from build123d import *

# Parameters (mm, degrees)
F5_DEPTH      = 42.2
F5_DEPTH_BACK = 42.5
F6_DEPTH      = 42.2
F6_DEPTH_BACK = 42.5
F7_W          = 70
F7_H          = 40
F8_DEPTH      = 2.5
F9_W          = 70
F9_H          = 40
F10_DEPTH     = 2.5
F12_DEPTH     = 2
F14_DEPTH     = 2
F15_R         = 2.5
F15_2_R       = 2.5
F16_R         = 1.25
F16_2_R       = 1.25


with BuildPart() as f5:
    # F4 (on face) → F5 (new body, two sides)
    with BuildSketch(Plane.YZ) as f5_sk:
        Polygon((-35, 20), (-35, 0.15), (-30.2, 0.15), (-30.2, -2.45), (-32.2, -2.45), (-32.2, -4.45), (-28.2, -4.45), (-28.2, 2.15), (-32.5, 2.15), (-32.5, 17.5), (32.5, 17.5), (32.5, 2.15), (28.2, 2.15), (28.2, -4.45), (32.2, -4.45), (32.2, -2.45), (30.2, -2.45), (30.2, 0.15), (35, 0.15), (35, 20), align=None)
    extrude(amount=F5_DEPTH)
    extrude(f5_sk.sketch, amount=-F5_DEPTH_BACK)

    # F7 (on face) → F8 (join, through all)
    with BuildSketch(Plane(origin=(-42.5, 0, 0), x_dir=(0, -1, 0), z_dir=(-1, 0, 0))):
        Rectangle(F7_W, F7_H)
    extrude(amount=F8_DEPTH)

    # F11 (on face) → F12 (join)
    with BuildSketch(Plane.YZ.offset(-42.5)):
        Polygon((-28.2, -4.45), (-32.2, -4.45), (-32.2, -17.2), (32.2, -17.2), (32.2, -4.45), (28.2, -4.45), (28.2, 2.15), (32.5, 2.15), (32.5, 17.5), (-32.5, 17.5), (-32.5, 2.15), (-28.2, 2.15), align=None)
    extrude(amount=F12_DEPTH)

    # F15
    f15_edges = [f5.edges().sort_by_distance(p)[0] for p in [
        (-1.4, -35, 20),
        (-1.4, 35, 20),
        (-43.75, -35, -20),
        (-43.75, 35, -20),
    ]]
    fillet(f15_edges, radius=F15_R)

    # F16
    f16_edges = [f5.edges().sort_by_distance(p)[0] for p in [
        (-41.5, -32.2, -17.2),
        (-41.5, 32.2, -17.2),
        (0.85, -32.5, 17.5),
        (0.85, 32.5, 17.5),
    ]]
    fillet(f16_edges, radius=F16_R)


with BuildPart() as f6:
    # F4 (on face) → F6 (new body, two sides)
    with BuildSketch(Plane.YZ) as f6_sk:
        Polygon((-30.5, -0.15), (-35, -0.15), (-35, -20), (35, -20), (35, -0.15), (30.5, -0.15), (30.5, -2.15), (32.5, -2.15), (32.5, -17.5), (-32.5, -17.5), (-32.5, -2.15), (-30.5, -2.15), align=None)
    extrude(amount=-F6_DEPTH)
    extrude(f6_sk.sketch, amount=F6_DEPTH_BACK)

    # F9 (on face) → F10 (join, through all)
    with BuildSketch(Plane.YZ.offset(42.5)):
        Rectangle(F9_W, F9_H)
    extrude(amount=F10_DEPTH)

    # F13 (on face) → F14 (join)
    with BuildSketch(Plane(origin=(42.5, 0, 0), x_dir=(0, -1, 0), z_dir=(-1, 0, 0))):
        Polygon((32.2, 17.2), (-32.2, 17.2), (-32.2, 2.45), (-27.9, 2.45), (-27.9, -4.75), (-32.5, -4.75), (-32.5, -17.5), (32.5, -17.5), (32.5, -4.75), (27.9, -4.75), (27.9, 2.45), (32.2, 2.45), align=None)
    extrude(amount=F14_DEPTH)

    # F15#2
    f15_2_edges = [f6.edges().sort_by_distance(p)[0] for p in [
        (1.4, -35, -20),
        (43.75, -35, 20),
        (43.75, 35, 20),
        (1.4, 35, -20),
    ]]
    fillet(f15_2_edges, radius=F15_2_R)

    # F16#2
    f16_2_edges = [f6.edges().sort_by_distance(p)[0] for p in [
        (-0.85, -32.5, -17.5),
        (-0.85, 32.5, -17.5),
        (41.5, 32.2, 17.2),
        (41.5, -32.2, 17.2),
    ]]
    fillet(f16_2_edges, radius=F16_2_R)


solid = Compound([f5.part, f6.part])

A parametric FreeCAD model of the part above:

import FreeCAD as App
import Part
import Sketcher


def edges_at(feature, points):
    """Names of the edges that pass closest to the given points."""
    edges = feature.Shape.Edges
    near = lambda p: min(range(len(edges)), key=lambda i: edges[i].distToShape(Part.Vertex(*p))[0])
    return sorted({f"Edge{near(p) + 1}" for p in points})


def add_polygon(sketch, points):
    """Adds a closed chain of lines whose ends are joined by coincident constraints."""
    first, n = sketch.GeometryCount, len(points)
    for a, b in zip(points, points[1:] + points[:1]):
        sketch.addGeometry(Part.LineSegment(App.Vector(*a, 0), App.Vector(*b, 0)), False)
    for i in range(n):
        sketch.addConstraint(Sketcher.Constraint("Coincident", first + i, 2, first + (i + 1) % n, 1))

doc = App.newDocument("Part")
body = doc.addObject("PartDesign::Body", "Body")

sketch1 = body.newObject("Sketcher::SketchObject", "Sketch")
sketch1.AttachmentSupport = (doc.getObject("YZ_Plane"), [""])
sketch1.MapMode = "FlatFace"
add_polygon(sketch1, [(-35, 20), (-35, 0.1), (-30.2, 0.1), (-30.2, -2.5), (-32.2, -2.5), (-32.2, -4.5), (-28.2, -4.5), (-28.2, 2.1), (-32.5, 2.1), (-32.5, 17.5), (32.5, 17.5), (32.5, 2.1), (28.2, 2.1), (28.2, -4.5), (32.2, -4.5), (32.2, -2.5), (30.2, -2.5), (30.2, 0.1), (35, 0.1), (35, 20)])
sketch1.addConstraint(Sketcher.Constraint("Vertical", 0))
sketch1.addConstraint(Sketcher.Constraint("Horizontal", 1))
sketch1.addConstraint(Sketcher.Constraint("Vertical", 2))
sketch1.addConstraint(Sketcher.Constraint("Horizontal", 3))
sketch1.addConstraint(Sketcher.Constraint("Vertical", 4))
sketch1.addConstraint(Sketcher.Constraint("Horizontal", 5))
sketch1.addConstraint(Sketcher.Constraint("Vertical", 6))
sketch1.addConstraint(Sketcher.Constraint("Horizontal", 7))
sketch1.addConstraint(Sketcher.Constraint("Vertical", 8))
sketch1.addConstraint(Sketcher.Constraint("Horizontal", 9))
sketch1.addConstraint(Sketcher.Constraint("Vertical", 10))
sketch1.addConstraint(Sketcher.Constraint("Horizontal", 11))
sketch1.addConstraint(Sketcher.Constraint("Vertical", 12))
sketch1.addConstraint(Sketcher.Constraint("Horizontal", 13))
sketch1.addConstraint(Sketcher.Constraint("Vertical", 14))
sketch1.addConstraint(Sketcher.Constraint("Horizontal", 15))
sketch1.addConstraint(Sketcher.Constraint("Vertical", 16))
sketch1.addConstraint(Sketcher.Constraint("Horizontal", 17))
sketch1.addConstraint(Sketcher.Constraint("Vertical", 18))
sketch1.addConstraint(Sketcher.Constraint("Horizontal", 19))
sketch1.addConstraint(Sketcher.Constraint("Symmetric", 7, 2, 10, 2, -2))
sketch1.addConstraint(Sketcher.Constraint("Symmetric", 5, 2, 12, 2, -2))
sketch1.addConstraint(Sketcher.Constraint("Symmetric", 3, 2, 14, 2, -2))
sketch1.addConstraint(Sketcher.Constraint("Symmetric", 1, 2, 16, 2, -2))
sketch1.addConstraint(Sketcher.Constraint("Equal", 1, 17))
sketch1.addConstraint(Sketcher.Constraint("Equal", 15, 4))
sketch1.addConstraint(Sketcher.Constraint("DistanceX", 3, 2, 3, 1, 2.0))
sketch1.addConstraint(Sketcher.Constraint("DistanceX", 5, 1, 5, 2, 4.0))
sketch1.addConstraint(Sketcher.Constraint("DistanceX", 9, 1, 9, 2, 65.0))
sketch1.addConstraint(Sketcher.Constraint("DistanceX", 19, 2, 19, 1, 70.0))
sketch1.addConstraint(Sketcher.Constraint("DistanceX", 1, 1, 1, 2, 4.8))
sketch1.addConstraint(Sketcher.Constraint("DistanceY", 2, 2, 2, 1, 2.6))
sketch1.addConstraint(Sketcher.Constraint("DistanceY", 6, 1, 6, 2, 6.6))
sketch1.addConstraint(Sketcher.Constraint("DistanceY", -1, 1, 18, 2, 20.0))
sketch1.addConstraint(Sketcher.Constraint("DistanceY", 0, 2, 0, 1, 19.85))
sketch1.addConstraint(Sketcher.Constraint("DistanceY", 8, 1, 8, 2, 15.35))
pad1 = body.newObject("PartDesign::Pad", "Pad")
pad1.Profile = sketch1
pad1.Type = "TwoLengths"
pad1.Length = 42.2
pad1.Length2 = 42.5

sketch2 = body.newObject("Sketcher::SketchObject", "Sketch001")
sketch2.AttachmentSupport = (doc.getObject("YZ_Plane"), [""])
sketch2.MapMode = "FlatFace"
sketch2.AttachmentOffset = App.Placement(App.Vector(0, 0, -42.5), App.Rotation())
add_polygon(sketch2, [(35, 20), (35, -20), (-35, -20), (-35, 20)])
sketch2.addConstraint(Sketcher.Constraint("Vertical", 0))
sketch2.addConstraint(Sketcher.Constraint("Horizontal", 1))
sketch2.addConstraint(Sketcher.Constraint("Vertical", 2))
sketch2.addConstraint(Sketcher.Constraint("Horizontal", 3))
sketch2.addConstraint(Sketcher.Constraint("Symmetric", 0, 2, 2, 2, -1, 1))
sketch2.addConstraint(Sketcher.Constraint("DistanceX", 1, 2, 1, 1, 70.0))
sketch2.addConstraint(Sketcher.Constraint("DistanceY", 0, 2, 0, 1, 40.0))
pad2 = body.newObject("PartDesign::Pad", "Pad001")
pad2.Profile = sketch2
pad2.Length = 2.5
pad2.Reversed = True

sketch3 = body.newObject("Sketcher::SketchObject", "Sketch002")
sketch3.AttachmentSupport = (doc.getObject("YZ_Plane"), [""])
sketch3.MapMode = "FlatFace"
sketch3.AttachmentOffset = App.Placement(App.Vector(0, 0, -42.5), App.Rotation())
add_polygon(sketch3, [(-28.2, -4.5), (-32.2, -4.5), (-32.2, -17.2), (32.2, -17.2), (32.2, -4.5), (28.2, -4.5), (28.2, 2.1), (32.5, 2.1), (32.5, 17.5), (-32.5, 17.5), (-32.5, 2.1), (-28.2, 2.1)])
sketch3.addConstraint(Sketcher.Constraint("Horizontal", 0))
sketch3.addConstraint(Sketcher.Constraint("Vertical", 1))
sketch3.addConstraint(Sketcher.Constraint("Horizontal", 2))
sketch3.addConstraint(Sketcher.Constraint("Vertical", 3))
sketch3.addConstraint(Sketcher.Constraint("Horizontal", 4))
sketch3.addConstraint(Sketcher.Constraint("Vertical", 5))
sketch3.addConstraint(Sketcher.Constraint("Horizontal", 6))
sketch3.addConstraint(Sketcher.Constraint("Vertical", 7))
sketch3.addConstraint(Sketcher.Constraint("Horizontal", 8))
sketch3.addConstraint(Sketcher.Constraint("Vertical", 9))
sketch3.addConstraint(Sketcher.Constraint("Horizontal", 10))
sketch3.addConstraint(Sketcher.Constraint("Vertical", 11))
sketch3.addConstraint(Sketcher.Constraint("Symmetric", 0, 2, 3, 2, -2))
sketch3.addConstraint(Sketcher.Constraint("Symmetric", 6, 2, 9, 2, -2))
sketch3.addConstraint(Sketcher.Constraint("Equal", 0, 4))
sketch3.addConstraint(Sketcher.Constraint("DistanceX", 0, 2, 0, 1, 4.0))
sketch3.addConstraint(Sketcher.Constraint("DistanceX", 8, 2, 8, 1, 65.0))
sketch3.addConstraint(Sketcher.Constraint("DistanceX", 2, 1, 2, 2, 64.4))
sketch3.addConstraint(Sketcher.Constraint("DistanceY", 5, 1, 5, 2, 6.6))
sketch3.addConstraint(Sketcher.Constraint("DistanceY", 1, 2, 1, 1, 12.75))
sketch3.addConstraint(Sketcher.Constraint("DistanceY", 7, 1, 7, 2, 15.35))
sketch3.addConstraint(Sketcher.Constraint("DistanceY", 1, 2, -1, 1, 17.2))
pad3 = body.newObject("PartDesign::Pad", "Pad002")
pad3.Profile = sketch3
pad3.Length = 2
doc.recompute()

fillet = body.newObject("PartDesign::Fillet", "Fillet")
fillet.Base = (pad3, edges_at(pad3, [
    (-1.4, -35, 20),
    (-1.4, 35, 20),
    (-43.75, -35, -20),
    (-43.75, 35, -20),
]))
fillet.Radius = 2.5
doc.recompute()

fillet2 = body.newObject("PartDesign::Fillet", "Fillet001")
fillet2.Base = (fillet, edges_at(fillet, [
    (-41.5, -32.2, -17.2),
    (-41.5, 32.2, -17.2),
    (0.85, -32.5, 17.5),
    (0.85, 32.5, 17.5),
]))
fillet2.Radius = 1.25
body2 = doc.addObject("PartDesign::Body", "Body001")

sketch4 = body2.newObject("Sketcher::SketchObject", "Sketch003")
sketch4.AttachmentSupport = (doc.getObject("YZ_Plane001"), [""])
sketch4.MapMode = "FlatFace"
add_polygon(sketch4, [(-30.5, -0.1), (-35, -0.1), (-35, -20), (35, -20), (35, -0.1), (30.5, -0.1), (30.5, -2.1), (32.5, -2.1), (32.5, -17.5), (-32.5, -17.5), (-32.5, -2.1), (-30.5, -2.1)])
sketch4.addConstraint(Sketcher.Constraint("Horizontal", 0))
sketch4.addConstraint(Sketcher.Constraint("Vertical", 1))
sketch4.addConstraint(Sketcher.Constraint("Horizontal", 2))
sketch4.addConstraint(Sketcher.Constraint("Vertical", 3))
sketch4.addConstraint(Sketcher.Constraint("Horizontal", 4))
sketch4.addConstraint(Sketcher.Constraint("Vertical", 5))
sketch4.addConstraint(Sketcher.Constraint("Horizontal", 6))
sketch4.addConstraint(Sketcher.Constraint("Vertical", 7))
sketch4.addConstraint(Sketcher.Constraint("Horizontal", 8))
sketch4.addConstraint(Sketcher.Constraint("Vertical", 9))
sketch4.addConstraint(Sketcher.Constraint("Horizontal", 10))
sketch4.addConstraint(Sketcher.Constraint("Vertical", 11))
sketch4.addConstraint(Sketcher.Constraint("Symmetric", 0, 2, 3, 2, -2))
sketch4.addConstraint(Sketcher.Constraint("Symmetric", 6, 2, 9, 2, -2))
sketch4.addConstraint(Sketcher.Constraint("Equal", 0, 4))
sketch4.addConstraint(Sketcher.Constraint("Equal", 10, 5))
sketch4.addConstraint(Sketcher.Constraint("DistanceX", 2, 1, 2, 2, 70.0))
sketch4.addConstraint(Sketcher.Constraint("DistanceX", 6, 1, 6, 2, 2.0))
sketch4.addConstraint(Sketcher.Constraint("DistanceX", 8, 2, 8, 1, 65.0))
sketch4.addConstraint(Sketcher.Constraint("DistanceY", 1, 2, -1, 1, 20.0))
sketch4.addConstraint(Sketcher.Constraint("DistanceY", 1, 2, 1, 1, 19.85))
sketch4.addConstraint(Sketcher.Constraint("DistanceY", 7, 2, 7, 1, 15.35))
pad4 = body2.newObject("PartDesign::Pad", "Pad003")
pad4.Profile = sketch4
pad4.Type = "TwoLengths"
pad4.Length = 42.2
pad4.Length2 = 42.5
pad4.Reversed = True

sketch5 = body2.newObject("Sketcher::SketchObject", "Sketch004")
sketch5.AttachmentSupport = (doc.getObject("YZ_Plane001"), [""])
sketch5.MapMode = "FlatFace"
sketch5.AttachmentOffset = App.Placement(App.Vector(0, 0, 42.5), App.Rotation())
add_polygon(sketch5, [(-35, 20), (-35, -20), (35, -20), (35, 20)])
sketch5.addConstraint(Sketcher.Constraint("Vertical", 0))
sketch5.addConstraint(Sketcher.Constraint("Horizontal", 1))
sketch5.addConstraint(Sketcher.Constraint("Vertical", 2))
sketch5.addConstraint(Sketcher.Constraint("Horizontal", 3))
sketch5.addConstraint(Sketcher.Constraint("Symmetric", 0, 2, 2, 2, -1, 1))
sketch5.addConstraint(Sketcher.Constraint("DistanceX", 1, 1, 1, 2, 70.0))
sketch5.addConstraint(Sketcher.Constraint("DistanceY", 0, 2, 0, 1, 40.0))
pad5 = body2.newObject("PartDesign::Pad", "Pad004")
pad5.Profile = sketch5
pad5.Length = 2.5

sketch6 = body2.newObject("Sketcher::SketchObject", "Sketch005")
sketch6.AttachmentSupport = (doc.getObject("YZ_Plane001"), [""])
sketch6.MapMode = "FlatFace"
sketch6.AttachmentOffset = App.Placement(App.Vector(0, 0, 42.5), App.Rotation())
add_polygon(sketch6, [(-32.2, 17.2), (32.2, 17.2), (32.2, 2.5), (27.9, 2.5), (27.9, -4.8), (32.5, -4.8), (32.5, -17.5), (-32.5, -17.5), (-32.5, -4.8), (-27.9, -4.8), (-27.9, 2.5), (-32.2, 2.5)])
sketch6.addConstraint(Sketcher.Constraint("Horizontal", 0))
sketch6.addConstraint(Sketcher.Constraint("Vertical", 1))
sketch6.addConstraint(Sketcher.Constraint("Horizontal", 2))
sketch6.addConstraint(Sketcher.Constraint("Vertical", 3))
sketch6.addConstraint(Sketcher.Constraint("Horizontal", 4))
sketch6.addConstraint(Sketcher.Constraint("Vertical", 5))
sketch6.addConstraint(Sketcher.Constraint("Horizontal", 6))
sketch6.addConstraint(Sketcher.Constraint("Vertical", 7))
sketch6.addConstraint(Sketcher.Constraint("Horizontal", 8))
sketch6.addConstraint(Sketcher.Constraint("Vertical", 9))
sketch6.addConstraint(Sketcher.Constraint("Horizontal", 10))
sketch6.addConstraint(Sketcher.Constraint("Vertical", 11))
sketch6.addConstraint(Sketcher.Constraint("Symmetric", 4, 2, 7, 2, -2))
sketch6.addConstraint(Sketcher.Constraint("Symmetric", 2, 2, 9, 2, -2))
sketch6.addConstraint(Sketcher.Constraint("Equal", 2, 10))
sketch6.addConstraint(Sketcher.Constraint("DistanceX", 6, 2, 6, 1, 65.0))
sketch6.addConstraint(Sketcher.Constraint("DistanceX", 0, 1, 0, 2, 64.4))
sketch6.addConstraint(Sketcher.Constraint("DistanceX", 2, 2, 2, 1, 4.3))
sketch6.addConstraint(Sketcher.Constraint("DistanceY", 3, 2, 3, 1, 7.2))
sketch6.addConstraint(Sketcher.Constraint("DistanceY", 1, 2, 1, 1, 14.75))
sketch6.addConstraint(Sketcher.Constraint("DistanceY", 5, 2, 5, 1, 12.75))
sketch6.addConstraint(Sketcher.Constraint("DistanceY", -1, 1, 0, 2, 17.2))
pad6 = body2.newObject("PartDesign::Pad", "Pad005")
pad6.Profile = sketch6
pad6.Length = 2
pad6.Reversed = True
doc.recompute()

fillet3 = body2.newObject("PartDesign::Fillet", "Fillet002")
fillet3.Base = (pad6, edges_at(pad6, [
    (1.4, -35, -20),
    (43.75, -35, 20),
    (43.75, 35, 20),
    (1.4, 35, -20),
]))
fillet3.Radius = 2.5
doc.recompute()

fillet4 = body2.newObject("PartDesign::Fillet", "Fillet003")
fillet4.Base = (fillet3, edges_at(fillet3, [
    (-0.85, -32.5, -17.5),
    (-0.85, 32.5, -17.5),
    (41.5, 32.2, 17.2),
    (41.5, -32.2, 17.2),
]))
fillet4.Radius = 1.25

doc.recompute()
